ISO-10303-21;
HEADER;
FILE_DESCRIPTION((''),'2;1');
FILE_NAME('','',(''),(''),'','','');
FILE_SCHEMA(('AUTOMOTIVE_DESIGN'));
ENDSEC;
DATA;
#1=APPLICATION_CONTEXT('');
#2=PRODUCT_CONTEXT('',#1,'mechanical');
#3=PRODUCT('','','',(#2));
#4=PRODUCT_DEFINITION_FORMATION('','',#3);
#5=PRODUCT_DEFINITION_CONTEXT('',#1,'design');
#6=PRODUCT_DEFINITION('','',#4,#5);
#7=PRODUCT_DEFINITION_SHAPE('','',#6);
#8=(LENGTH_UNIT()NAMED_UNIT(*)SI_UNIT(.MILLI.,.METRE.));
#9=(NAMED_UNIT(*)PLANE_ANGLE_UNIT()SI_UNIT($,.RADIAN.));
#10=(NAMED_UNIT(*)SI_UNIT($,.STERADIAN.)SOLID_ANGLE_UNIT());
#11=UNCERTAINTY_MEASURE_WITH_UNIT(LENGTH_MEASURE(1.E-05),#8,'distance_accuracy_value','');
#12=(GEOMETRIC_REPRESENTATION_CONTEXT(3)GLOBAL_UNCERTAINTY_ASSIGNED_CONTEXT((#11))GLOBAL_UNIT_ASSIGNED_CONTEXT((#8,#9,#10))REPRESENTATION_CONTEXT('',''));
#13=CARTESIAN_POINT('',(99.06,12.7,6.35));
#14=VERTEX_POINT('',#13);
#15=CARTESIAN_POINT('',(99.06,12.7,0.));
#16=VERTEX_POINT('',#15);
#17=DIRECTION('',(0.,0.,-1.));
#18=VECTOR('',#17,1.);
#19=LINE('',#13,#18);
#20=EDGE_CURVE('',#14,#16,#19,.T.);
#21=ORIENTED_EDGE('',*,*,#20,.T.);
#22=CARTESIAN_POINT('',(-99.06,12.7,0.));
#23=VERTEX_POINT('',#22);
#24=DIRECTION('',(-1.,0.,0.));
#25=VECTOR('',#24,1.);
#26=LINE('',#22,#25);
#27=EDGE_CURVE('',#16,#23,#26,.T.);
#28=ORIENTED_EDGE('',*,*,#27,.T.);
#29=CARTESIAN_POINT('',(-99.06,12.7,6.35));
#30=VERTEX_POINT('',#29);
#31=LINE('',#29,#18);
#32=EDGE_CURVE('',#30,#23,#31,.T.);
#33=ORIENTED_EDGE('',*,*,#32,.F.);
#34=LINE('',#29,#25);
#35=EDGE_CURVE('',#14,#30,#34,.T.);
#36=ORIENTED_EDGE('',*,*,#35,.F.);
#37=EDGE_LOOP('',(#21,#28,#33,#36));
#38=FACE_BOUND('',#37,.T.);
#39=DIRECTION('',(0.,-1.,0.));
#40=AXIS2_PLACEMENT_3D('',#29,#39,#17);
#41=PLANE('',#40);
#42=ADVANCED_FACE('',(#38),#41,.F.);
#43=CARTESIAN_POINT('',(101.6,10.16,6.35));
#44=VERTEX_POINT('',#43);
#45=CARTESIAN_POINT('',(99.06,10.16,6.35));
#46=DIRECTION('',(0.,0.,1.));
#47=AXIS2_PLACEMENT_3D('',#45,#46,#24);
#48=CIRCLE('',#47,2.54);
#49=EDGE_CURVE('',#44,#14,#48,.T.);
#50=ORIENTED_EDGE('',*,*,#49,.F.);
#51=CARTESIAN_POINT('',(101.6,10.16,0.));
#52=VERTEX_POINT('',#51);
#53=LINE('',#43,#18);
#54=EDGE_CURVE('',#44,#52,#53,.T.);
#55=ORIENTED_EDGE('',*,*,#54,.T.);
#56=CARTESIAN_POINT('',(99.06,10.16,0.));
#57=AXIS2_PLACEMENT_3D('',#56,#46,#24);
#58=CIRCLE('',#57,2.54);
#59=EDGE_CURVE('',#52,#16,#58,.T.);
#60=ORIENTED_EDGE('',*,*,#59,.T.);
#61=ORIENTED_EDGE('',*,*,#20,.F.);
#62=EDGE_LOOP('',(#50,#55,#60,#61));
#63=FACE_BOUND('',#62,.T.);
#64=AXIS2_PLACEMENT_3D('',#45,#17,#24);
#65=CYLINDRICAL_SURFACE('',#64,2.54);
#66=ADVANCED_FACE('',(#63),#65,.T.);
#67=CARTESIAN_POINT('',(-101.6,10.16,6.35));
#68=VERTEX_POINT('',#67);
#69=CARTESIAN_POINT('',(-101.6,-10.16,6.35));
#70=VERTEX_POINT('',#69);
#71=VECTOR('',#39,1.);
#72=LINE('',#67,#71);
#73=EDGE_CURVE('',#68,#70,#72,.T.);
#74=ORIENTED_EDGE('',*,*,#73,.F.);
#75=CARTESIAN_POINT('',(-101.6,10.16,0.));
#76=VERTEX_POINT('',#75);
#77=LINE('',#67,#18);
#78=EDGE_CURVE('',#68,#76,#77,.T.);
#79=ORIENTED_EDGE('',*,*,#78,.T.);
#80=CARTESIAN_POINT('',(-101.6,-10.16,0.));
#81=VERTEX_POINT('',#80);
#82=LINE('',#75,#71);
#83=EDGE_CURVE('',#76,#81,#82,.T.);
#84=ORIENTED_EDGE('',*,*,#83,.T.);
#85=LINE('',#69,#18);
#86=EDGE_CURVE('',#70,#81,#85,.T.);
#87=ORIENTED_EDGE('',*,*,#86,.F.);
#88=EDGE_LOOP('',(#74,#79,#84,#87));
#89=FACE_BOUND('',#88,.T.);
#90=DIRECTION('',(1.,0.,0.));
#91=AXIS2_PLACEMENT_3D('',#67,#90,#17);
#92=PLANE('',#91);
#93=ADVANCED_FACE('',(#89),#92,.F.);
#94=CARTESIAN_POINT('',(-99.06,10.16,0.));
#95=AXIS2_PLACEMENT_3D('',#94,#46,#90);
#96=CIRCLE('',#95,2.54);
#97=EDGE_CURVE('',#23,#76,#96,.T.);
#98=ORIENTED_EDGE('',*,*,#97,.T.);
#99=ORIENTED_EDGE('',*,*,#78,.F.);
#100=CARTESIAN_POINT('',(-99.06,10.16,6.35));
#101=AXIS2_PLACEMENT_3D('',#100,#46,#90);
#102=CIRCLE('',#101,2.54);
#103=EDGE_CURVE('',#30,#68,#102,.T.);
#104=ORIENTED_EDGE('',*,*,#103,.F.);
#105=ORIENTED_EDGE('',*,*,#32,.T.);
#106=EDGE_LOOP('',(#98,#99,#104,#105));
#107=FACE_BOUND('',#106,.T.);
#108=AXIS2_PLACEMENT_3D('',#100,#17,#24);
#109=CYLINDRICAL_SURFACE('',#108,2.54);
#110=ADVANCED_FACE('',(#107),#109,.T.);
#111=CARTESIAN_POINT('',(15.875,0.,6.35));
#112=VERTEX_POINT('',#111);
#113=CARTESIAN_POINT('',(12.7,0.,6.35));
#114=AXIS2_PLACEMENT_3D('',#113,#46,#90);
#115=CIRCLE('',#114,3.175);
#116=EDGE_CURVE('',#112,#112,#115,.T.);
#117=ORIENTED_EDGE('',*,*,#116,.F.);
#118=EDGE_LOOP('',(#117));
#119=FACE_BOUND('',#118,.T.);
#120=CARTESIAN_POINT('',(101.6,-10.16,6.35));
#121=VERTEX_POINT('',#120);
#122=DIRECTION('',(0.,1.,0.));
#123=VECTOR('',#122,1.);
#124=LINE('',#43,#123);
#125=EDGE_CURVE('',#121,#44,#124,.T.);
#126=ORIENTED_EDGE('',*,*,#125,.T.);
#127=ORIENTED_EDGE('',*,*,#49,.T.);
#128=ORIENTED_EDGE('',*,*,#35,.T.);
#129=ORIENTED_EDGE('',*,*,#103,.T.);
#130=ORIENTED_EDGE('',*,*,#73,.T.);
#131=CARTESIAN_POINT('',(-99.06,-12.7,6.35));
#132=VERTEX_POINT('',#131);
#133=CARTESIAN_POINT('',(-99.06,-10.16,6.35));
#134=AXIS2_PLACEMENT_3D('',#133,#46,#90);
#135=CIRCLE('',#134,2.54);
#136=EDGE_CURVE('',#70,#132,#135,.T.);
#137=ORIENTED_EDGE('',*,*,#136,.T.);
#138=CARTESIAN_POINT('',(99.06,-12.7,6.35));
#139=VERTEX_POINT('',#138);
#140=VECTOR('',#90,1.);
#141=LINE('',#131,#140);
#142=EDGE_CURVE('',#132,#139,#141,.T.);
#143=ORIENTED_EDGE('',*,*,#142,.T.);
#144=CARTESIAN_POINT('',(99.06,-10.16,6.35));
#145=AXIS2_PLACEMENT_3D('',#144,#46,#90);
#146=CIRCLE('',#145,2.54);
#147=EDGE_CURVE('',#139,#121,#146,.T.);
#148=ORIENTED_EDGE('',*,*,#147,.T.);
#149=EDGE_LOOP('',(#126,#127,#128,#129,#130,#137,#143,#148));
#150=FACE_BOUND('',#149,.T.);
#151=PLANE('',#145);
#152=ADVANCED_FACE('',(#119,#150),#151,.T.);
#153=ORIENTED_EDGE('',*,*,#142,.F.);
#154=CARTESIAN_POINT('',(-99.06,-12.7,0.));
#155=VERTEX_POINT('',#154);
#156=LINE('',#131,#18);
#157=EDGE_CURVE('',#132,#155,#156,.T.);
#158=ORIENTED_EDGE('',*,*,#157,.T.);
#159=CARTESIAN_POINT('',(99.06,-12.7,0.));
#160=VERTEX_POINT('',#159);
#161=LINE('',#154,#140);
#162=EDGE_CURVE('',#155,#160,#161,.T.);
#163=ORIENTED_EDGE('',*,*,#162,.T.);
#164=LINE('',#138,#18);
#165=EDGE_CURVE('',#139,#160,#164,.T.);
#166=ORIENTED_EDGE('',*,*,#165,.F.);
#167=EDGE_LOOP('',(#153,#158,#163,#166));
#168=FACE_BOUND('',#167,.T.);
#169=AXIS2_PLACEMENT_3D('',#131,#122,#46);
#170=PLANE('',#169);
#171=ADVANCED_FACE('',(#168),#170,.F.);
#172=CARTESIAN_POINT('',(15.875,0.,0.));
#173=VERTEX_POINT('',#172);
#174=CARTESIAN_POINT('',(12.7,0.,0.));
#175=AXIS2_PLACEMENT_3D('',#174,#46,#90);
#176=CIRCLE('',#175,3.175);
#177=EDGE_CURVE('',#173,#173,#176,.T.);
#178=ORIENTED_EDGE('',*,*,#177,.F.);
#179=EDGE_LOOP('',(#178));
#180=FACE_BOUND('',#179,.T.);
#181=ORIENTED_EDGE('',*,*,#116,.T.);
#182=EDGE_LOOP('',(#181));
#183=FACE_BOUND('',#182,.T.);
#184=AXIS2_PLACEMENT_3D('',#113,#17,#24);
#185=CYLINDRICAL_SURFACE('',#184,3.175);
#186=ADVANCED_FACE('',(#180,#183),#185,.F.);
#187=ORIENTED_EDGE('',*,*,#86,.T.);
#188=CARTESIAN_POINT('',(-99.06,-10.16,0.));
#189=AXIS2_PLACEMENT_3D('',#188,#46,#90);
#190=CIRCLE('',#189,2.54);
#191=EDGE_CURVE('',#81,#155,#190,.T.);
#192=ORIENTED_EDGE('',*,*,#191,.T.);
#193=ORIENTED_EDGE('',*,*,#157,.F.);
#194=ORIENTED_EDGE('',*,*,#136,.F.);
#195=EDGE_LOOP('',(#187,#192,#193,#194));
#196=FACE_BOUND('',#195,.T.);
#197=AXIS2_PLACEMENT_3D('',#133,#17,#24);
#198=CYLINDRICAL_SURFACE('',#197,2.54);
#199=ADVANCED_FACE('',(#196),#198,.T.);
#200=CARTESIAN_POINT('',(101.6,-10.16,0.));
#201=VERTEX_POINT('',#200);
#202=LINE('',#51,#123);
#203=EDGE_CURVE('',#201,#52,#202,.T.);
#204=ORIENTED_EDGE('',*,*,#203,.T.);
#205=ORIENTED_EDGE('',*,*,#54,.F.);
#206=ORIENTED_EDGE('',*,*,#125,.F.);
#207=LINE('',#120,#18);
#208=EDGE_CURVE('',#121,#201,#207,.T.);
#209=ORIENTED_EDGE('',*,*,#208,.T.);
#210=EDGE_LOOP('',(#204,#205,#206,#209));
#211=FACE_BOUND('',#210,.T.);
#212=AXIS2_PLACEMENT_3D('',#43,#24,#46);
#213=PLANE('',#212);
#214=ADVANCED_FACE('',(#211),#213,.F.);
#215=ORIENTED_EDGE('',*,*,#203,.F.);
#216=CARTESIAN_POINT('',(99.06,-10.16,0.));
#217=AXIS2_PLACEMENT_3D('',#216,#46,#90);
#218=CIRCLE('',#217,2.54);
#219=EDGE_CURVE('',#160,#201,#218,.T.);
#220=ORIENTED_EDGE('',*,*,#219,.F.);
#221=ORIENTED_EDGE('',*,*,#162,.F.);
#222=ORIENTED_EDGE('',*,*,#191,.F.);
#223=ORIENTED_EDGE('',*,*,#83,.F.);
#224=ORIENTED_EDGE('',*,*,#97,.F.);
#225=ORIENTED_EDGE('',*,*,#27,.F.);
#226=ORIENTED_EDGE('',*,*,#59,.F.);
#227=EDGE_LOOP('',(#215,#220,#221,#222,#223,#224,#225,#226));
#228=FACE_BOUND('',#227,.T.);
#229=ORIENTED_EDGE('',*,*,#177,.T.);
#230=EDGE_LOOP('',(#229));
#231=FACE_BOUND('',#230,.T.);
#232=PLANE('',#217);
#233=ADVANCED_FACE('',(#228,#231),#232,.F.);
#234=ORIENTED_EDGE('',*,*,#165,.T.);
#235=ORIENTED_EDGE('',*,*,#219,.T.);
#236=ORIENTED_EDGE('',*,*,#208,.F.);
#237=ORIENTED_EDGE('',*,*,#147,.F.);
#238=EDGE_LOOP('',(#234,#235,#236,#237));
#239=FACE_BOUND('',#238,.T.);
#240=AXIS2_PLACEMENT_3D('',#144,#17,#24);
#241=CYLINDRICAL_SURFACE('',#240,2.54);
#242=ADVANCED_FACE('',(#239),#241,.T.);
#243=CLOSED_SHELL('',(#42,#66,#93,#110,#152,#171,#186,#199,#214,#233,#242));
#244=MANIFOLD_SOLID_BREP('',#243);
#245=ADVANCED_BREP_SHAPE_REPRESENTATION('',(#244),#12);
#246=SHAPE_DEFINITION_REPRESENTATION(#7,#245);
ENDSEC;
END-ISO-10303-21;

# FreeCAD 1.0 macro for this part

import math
import FreeCAD as App
import Part
import Sketcher
from FreeCAD import Vector
Q = App.Units.Quantity

doc = App.newDocument("Part")
body = doc.addObject("PartDesign::Body", "Body")

# Sketch on XY plane
sketch1 = body.newObject("Sketcher::SketchObject", "Sketch")
sketch1.AttachmentSupport = (doc.getObject("XY_Plane"), [""])
sketch1.MapMode = "FlatFace"
sketch1.addGeometry(Part.LineSegment(Vector(99.1, 12.7, 0), Vector(-99.1, 12.7, 0)), False)
sketch1.addGeometry(Part.ArcOfCircle(Part.Circle(Vector(-99.1, 10.2, 0), Vector(0, 0, 1), 2.5), math.radians(90), math.radians(180)), False)
sketch1.addGeometry(Part.LineSegment(Vector(-101.6, 10.2, 0), Vector(-101.6, -10.2, 0)), False)
sketch1.addGeometry(Part.ArcOfCircle(Part.Circle(Vector(-99.1, -10.2, 0), Vector(0, 0, 1), 2.5), math.radians(-180), math.radians(-90)), False)
sketch1.addGeometry(Part.LineSegment(Vector(-99.1, -12.7, 0), Vector(99.1, -12.7, 0)), False)
sketch1.addGeometry(Part.ArcOfCircle(Part.Circle(Vector(99.1, -10.2, 0), Vector(0, 0, 1), 2.5), math.radians(-90), math.radians(0)), False)
sketch1.addGeometry(Part.LineSegment(Vector(101.6, -10.2, 0), Vector(101.6, 10.2, 0)), False)
sketch1.addGeometry(Part.ArcOfCircle(Part.Circle(Vector(99.1, 10.2, 0), Vector(0, 0, 1), 2.5), math.radians(0), math.radians(90)), False)
sketch1.addGeometry(Part.Circle(Vector(12.7, 0, 0), Vector(0, 0, 1), 3.2), False)
sketch1.addConstraint(Sketcher.Constraint("Tangent", 0, 2, 1, 1))
sketch1.addConstraint(Sketcher.Constraint("Tangent", 1, 2, 2, 1))
sketch1.addConstraint(Sketcher.Constraint("Tangent", 2, 2, 3, 1))
sketch1.addConstraint(Sketcher.Constraint("Tangent", 3, 2, 4, 1))
sketch1.addConstraint(Sketcher.Constraint("Tangent", 4, 2, 5, 1))
sketch1.addConstraint(Sketcher.Constraint("Tangent", 5, 2, 6, 1))
sketch1.addConstraint(Sketcher.Constraint("Tangent", 6, 2, 7, 1))
sketch1.addConstraint(Sketcher.Constraint("Tangent", 7, 2, 0, 1))
sketch1.addConstraint(Sketcher.Constraint("Horizontal", 0))
sketch1.addConstraint(Sketcher.Constraint("Vertical", 2))
sketch1.addConstraint(Sketcher.Constraint("Horizontal", 4))
sketch1.addConstraint(Sketcher.Constraint("Vertical", 6))
sketch1.addConstraint(Sketcher.Constraint("Equal", 1, 3))
sketch1.addConstraint(Sketcher.Constraint("Equal", 3, 5))
sketch1.addConstraint(Sketcher.Constraint("Equal", 5, 7))
sketch1.addConstraint(Sketcher.Constraint("Symmetric", 1, 3, 5, 3, -1, 1))
sketch1.addConstraint(Sketcher.Constraint("PointOnObject", 8, 3, -1))
sketch1.addConstraint(Sketcher.Constraint("Radius", 1, Q("0.1 in")))
sketch1.addConstraint(Sketcher.Constraint("Diameter", 8, Q("0.25 in")))
sketch1.addConstraint(Sketcher.Constraint("DistanceX", 0, 2, 0, 1, Q("7.8 in")))
sketch1.addConstraint(Sketcher.Constraint("DistanceY", 2, 2, 2, 1, Q("0.8 in")))
sketch1.addConstraint(Sketcher.Constraint("DistanceX", -1, 1, 8, 3, Q("0.5 in")))
pad1 = body.newObject("PartDesign::Pad", "Pad")
pad1.Profile = sketch1
pad1.Length = Q("0.25 in")

doc.recompute()
